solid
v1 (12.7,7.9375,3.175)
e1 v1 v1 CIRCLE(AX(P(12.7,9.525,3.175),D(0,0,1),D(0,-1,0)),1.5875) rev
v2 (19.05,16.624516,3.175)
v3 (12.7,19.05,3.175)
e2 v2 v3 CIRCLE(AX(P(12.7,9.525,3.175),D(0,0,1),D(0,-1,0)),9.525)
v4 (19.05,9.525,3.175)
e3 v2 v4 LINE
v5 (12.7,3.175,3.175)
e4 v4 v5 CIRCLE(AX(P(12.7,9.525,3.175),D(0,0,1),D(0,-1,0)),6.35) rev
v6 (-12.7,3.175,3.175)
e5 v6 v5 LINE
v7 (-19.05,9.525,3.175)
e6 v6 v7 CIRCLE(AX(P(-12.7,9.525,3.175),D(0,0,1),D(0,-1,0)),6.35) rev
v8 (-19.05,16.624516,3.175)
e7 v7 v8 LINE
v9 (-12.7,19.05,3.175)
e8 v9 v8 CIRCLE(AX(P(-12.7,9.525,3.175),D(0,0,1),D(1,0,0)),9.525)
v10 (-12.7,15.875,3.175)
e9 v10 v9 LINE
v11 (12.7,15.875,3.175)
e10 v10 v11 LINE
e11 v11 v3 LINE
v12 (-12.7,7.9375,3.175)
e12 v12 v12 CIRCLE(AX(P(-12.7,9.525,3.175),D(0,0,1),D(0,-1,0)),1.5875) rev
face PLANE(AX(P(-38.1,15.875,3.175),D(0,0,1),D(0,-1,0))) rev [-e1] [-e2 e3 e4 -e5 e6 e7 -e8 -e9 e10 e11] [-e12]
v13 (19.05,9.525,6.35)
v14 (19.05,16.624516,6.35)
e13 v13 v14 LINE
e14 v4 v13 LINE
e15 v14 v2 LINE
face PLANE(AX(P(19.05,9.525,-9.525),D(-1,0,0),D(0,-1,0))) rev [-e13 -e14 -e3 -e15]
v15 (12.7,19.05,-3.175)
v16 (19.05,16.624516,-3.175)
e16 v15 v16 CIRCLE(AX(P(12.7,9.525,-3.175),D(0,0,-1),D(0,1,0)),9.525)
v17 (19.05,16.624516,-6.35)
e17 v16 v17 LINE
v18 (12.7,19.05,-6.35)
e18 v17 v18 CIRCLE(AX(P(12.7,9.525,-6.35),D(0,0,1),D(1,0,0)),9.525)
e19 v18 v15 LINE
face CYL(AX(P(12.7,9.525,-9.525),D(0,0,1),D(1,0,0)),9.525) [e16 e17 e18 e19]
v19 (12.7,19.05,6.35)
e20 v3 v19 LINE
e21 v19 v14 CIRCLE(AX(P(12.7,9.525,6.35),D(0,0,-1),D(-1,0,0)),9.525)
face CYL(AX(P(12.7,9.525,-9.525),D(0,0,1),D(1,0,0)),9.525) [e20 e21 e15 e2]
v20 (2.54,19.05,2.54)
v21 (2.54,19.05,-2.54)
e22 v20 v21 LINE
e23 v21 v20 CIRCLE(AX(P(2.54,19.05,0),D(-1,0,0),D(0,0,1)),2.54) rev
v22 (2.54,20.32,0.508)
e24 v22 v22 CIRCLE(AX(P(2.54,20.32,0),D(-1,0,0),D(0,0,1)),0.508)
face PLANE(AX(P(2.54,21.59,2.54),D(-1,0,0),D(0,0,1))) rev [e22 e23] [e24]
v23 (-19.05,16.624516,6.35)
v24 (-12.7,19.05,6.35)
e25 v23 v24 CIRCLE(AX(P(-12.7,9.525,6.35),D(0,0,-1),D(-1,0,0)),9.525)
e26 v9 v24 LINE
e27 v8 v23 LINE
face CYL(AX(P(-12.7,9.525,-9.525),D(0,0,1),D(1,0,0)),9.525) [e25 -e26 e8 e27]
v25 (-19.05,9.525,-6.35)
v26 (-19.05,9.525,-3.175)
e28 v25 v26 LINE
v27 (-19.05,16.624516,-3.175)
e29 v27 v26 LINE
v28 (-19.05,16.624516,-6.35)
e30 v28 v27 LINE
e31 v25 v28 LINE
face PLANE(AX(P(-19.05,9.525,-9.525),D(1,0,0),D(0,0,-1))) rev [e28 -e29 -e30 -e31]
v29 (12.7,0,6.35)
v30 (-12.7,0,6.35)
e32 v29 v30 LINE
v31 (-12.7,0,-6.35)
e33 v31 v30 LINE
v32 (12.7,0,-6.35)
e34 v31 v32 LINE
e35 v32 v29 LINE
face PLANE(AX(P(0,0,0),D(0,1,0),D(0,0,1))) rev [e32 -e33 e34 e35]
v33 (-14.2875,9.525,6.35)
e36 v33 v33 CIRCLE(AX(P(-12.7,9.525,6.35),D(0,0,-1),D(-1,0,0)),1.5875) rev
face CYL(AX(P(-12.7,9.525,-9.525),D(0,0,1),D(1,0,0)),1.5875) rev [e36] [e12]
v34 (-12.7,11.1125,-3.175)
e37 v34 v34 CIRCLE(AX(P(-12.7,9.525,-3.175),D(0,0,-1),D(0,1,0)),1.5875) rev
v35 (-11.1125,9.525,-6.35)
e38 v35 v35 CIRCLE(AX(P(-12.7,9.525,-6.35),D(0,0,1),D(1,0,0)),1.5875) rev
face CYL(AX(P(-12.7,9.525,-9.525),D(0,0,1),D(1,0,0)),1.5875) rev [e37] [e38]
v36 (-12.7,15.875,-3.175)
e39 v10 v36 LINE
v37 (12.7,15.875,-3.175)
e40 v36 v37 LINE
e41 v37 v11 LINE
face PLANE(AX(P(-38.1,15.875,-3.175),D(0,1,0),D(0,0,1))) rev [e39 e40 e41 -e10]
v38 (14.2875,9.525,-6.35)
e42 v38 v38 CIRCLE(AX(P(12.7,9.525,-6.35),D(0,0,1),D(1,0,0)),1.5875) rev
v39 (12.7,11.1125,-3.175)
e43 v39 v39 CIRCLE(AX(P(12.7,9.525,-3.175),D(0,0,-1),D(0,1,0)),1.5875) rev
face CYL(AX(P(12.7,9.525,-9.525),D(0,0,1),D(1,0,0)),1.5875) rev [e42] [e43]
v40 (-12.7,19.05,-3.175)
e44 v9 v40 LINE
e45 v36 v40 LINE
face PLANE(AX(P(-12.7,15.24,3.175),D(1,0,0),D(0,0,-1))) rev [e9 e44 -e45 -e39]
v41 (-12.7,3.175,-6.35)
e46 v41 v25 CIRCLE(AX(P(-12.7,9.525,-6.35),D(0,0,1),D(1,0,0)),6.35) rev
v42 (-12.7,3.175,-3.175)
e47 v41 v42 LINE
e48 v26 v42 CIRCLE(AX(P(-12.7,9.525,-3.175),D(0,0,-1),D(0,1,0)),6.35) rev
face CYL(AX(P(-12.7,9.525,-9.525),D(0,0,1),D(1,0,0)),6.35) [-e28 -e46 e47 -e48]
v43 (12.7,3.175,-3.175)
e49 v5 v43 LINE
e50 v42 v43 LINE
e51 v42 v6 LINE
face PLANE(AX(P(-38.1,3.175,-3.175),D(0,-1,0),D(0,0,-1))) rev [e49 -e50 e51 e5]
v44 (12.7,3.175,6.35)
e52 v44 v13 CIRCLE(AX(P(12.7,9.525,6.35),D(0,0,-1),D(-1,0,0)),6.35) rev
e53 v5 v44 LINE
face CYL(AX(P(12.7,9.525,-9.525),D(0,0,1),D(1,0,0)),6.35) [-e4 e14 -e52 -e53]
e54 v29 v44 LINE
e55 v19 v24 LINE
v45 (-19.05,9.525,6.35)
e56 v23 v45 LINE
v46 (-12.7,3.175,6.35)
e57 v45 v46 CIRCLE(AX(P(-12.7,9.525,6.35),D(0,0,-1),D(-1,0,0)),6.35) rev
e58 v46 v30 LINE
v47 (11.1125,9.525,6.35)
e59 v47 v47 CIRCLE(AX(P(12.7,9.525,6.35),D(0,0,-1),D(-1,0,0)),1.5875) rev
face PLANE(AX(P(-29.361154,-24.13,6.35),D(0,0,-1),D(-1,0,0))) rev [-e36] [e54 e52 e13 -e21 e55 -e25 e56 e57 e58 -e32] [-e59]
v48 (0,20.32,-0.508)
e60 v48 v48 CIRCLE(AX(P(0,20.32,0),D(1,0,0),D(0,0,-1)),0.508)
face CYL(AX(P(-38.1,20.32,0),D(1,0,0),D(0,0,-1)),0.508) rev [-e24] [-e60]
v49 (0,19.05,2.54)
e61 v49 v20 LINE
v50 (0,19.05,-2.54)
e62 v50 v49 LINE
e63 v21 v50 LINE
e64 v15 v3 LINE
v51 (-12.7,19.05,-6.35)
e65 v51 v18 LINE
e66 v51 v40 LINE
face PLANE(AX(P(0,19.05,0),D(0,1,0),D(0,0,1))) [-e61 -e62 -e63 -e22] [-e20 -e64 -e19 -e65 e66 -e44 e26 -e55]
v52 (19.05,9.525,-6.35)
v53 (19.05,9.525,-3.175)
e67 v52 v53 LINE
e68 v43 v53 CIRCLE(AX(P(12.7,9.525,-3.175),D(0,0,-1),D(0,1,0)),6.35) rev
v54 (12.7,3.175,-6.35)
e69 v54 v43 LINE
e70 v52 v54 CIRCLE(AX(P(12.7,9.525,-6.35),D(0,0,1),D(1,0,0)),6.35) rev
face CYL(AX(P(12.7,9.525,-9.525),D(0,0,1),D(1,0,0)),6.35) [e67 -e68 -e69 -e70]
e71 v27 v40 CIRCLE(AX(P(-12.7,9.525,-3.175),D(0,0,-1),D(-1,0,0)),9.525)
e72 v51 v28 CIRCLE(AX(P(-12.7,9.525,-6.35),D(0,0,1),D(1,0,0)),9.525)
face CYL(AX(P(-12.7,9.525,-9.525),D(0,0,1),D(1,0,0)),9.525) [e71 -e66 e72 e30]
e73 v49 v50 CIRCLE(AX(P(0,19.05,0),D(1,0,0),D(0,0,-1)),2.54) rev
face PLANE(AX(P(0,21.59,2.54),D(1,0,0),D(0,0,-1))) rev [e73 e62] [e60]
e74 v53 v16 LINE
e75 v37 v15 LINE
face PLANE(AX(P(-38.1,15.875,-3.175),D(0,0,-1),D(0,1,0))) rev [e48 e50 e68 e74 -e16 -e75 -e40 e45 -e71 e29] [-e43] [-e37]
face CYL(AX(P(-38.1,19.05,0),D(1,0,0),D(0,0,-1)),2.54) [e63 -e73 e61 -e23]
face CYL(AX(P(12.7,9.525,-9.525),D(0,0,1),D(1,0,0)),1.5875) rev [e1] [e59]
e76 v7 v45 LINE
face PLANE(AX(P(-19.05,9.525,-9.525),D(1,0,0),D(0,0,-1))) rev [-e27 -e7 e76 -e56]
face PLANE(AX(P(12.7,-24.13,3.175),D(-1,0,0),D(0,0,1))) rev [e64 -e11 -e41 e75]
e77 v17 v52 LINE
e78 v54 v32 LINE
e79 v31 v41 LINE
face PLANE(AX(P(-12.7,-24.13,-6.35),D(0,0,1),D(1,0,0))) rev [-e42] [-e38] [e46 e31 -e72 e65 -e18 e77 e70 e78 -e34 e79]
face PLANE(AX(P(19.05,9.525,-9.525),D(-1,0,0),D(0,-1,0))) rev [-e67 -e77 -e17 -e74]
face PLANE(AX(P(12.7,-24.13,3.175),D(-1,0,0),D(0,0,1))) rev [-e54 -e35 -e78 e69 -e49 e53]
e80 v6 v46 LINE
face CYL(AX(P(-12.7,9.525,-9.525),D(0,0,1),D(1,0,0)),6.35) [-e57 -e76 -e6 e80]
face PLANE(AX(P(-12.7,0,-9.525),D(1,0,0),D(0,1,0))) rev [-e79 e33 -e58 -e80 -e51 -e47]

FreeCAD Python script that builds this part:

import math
import FreeCAD as App
import Part
import Sketcher

V = App.Vector
Q = App.Units.Quantity

doc = App.newDocument("Part")
params = doc.addObject("Spreadsheet::Sheet", "Params")
for row, (alias, value) in enumerate([
    ("sketch1_width", "1.75 in"),
    ("sketch1_height", "0.75 in"),
    ("pad1_length", "0.75 in"),
    ("sketch2_diameter", "0.125 in"),
    ("sketch2_radius", "0.375 in"),
    ("pocket1_length", "0.75 in"),
    ("sketch3_width", "0.1 in"),
    ("sketch3_height", "0.2 in"),
    ("pad2_length", "0.1 in"),
    ("sketch4_radius", "0.1 in"),
    ("sketch4_diameter", "0.04 in"),
    ("sketch4_width", "0.5 in"),
    ("sketch4_height", "0.25 in"),
    ("pocket2_length", "3 in"),
    ("sketch5_height", "0.25 in"),
    ("pocket3_length", "1.7 in"),
    ("sketch6_radius", "0.25 in"),
    ("sketch6_height", "0.125 in"),
    ("pocket4_length", "0.75 in"),
    ("sketch7_height", "0.25 in"),
    ("pocket5_length", "0.15 in"),
], start=1):
    params.set(f"A{row}", alias)
    params.set(f"B{row}", "=" + value)
    params.setAlias(f"B{row}", alias)

body = doc.addObject("PartDesign::Body", "Body")

sketch1 = body.newObject("Sketcher::SketchObject", "Sketch")
sketch1.AttachmentSupport = (doc.getObject("XZ_Plane"), [""])
sketch1.MapMode = "FlatFace"
sketch1.addGeometry([
    Part.LineSegment(V(-22.225, -9.525, 0), V(-22.225, 9.525, 0)),
    Part.LineSegment(V(-22.225, 9.525, 0), V(22.225, 9.525, 0)),
    Part.LineSegment(V(22.225, 9.525, 0), V(22.225, -9.525, 0)),
    Part.LineSegment(V(22.225, -9.525, 0), V(-22.225, -9.525, 0)),
], False)
sketch1.addConstraint([
    Sketcher.Constraint("Coincident", 0, 2, 1, 1),
    Sketcher.Constraint("Coincident", 1, 2, 2, 1),
    Sketcher.Constraint("Coincident", 2, 2, 3, 1),
    Sketcher.Constraint("Coincident", 3, 2, 0, 1),
    Sketcher.Constraint("Vertical", 0),
    Sketcher.Constraint("Horizontal", 1),
    Sketcher.Constraint("Vertical", 2),
    Sketcher.Constraint("Horizontal", 3),
    Sketcher.Constraint("Symmetric", 0, 2, 2, 2, -1, 1),
    Sketcher.Constraint("DistanceX", 1, 1, 1, 2, Q("1.75 in")),
    Sketcher.Constraint("DistanceY", 0, 1, 0, 2, Q("0.75 in")),
])
sketch1.setExpression("Constraints[9]", "Params.sketch1_width")
sketch1.setExpression("Constraints[10]", "Params.sketch1_height")
pad1 = body.newObject("PartDesign::Pad", "Pad")
pad1.Profile = sketch1
pad1.setExpression("Length", "Params.pad1_length")
pad1.Reversed = True

sketch2 = body.newObject("Sketcher::SketchObject", "Sketch001")
sketch2.AttachmentSupport = (doc.getObject("XY_Plane"), [""])
sketch2.MapMode = "FlatFace"
sketch2.AttachmentOffset = App.Placement(V(0, 0, 0.375 * 25.4), App.Rotation())
sketch2.addGeometry([
    Part.Circle(V(-12.7, 9.525, 0), V(0, 0, 1), 1.5875),
    Part.Circle(V(12.7, 9.525, 0), V(0, 0, 1), 1.5875),
    Part.ArcOfCircle(Part.Circle(V(-12.7, 9.525, 0), V(0, 0, 1), 9.525), math.radians(90), math.radians(270)),
    Part.ArcOfCircle(Part.Circle(V(-20.563339, 9.525, 0), V(0, 0, 1), 12.351426), math.radians(50.458711), math.radians(309.541289)),
    Part.ArcOfCircle(Part.Circle(V(20.563339, 9.525, 0), V(0, 0, 1), 12.351426), math.radians(-129.541289), math.radians(129.541289)),
    Part.ArcOfCircle(Part.Circle(V(12.7, 9.525, 0), V(0, 0, 1), 9.525), math.radians(-90), math.radians(90)),
], False)
sketch2.addConstraint([
    Sketcher.Constraint("Coincident", 2, 1, 3, 1),
    Sketcher.Constraint("Coincident", 3, 2, 2, 2),
    Sketcher.Constraint("Coincident", 4, 1, 5, 1),
    Sketcher.Constraint("Coincident", 5, 2, 4, 2),
    Sketcher.Constraint("Coincident", 2, 3, 0, 3),
    Sketcher.Constraint("Coincident", 5, 3, 1, 3),
    Sketcher.Constraint("Equal", 0, 1),
    Sketcher.Constraint("Equal", 3, 4),
    Sketcher.Constraint("Equal", 2, 5),
    Sketcher.Constraint("Symmetric", 3, 2, 4, 1, -1, 1),
    Sketcher.Constraint("Symmetric", 0, 3, 1, 3, -2),
    Sketcher.Constraint("Horizontal", 2, 3, 3, 3),
    Sketcher.Constraint("Horizontal", 3, 3, 4, 3),
    Sketcher.Constraint("Vertical", 0, 3, 2, 1),
    Sketcher.Constraint("Diameter", 0, Q("0.125 in")),
    Sketcher.Constraint("Radius", 2, Q("0.375 in")),
    Sketcher.Constraint("DistanceX", 0, 3, 1, 3, Q("1 in")),
    Sketcher.Constraint("Radius", 3, Q("12.351426 mm")),
])
sketch2.setExpression("Constraints[14]", "Params.sketch2_diameter")
sketch2.setExpression("Constraints[15]", "Params.sketch2_radius")
pocket1 = body.newObject("PartDesign::Pocket", "Pocket")
pocket1.Profile = sketch2
pocket1.setExpression("Length", "Params.pocket1_length")

sketch3 = body.newObject("Sketcher::SketchObject", "Sketch002")
sketch3.AttachmentSupport = (doc.getObject("XZ_Plane"), [""])
sketch3.MapMode = "FlatFace"
sketch3.AttachmentOffset = App.Placement(V(0, 0, -0.75 * 25.4), App.Rotation())
sketch3.addGeometry([
    Part.LineSegment(V(0, -2.54, 0), V(0, 2.54, 0)),
    Part.LineSegment(V(0, 2.54, 0), V(2.54, 2.54, 0)),
    Part.LineSegment(V(2.54, 2.54, 0), V(2.54, -2.54, 0)),
    Part.LineSegment(V(2.54, -2.54, 0), V(0, -2.54, 0)),
], False)
sketch3.addConstraint([
    Sketcher.Constraint("Coincident", 0, 2, 1, 1),
    Sketcher.Constraint("Coincident", 1, 2, 2, 1),
    Sketcher.Constraint("Coincident", 2, 2, 3, 1),
    Sketcher.Constraint("Coincident", 3, 2, 0, 1),
    Sketcher.Constraint("Vertical", 0),
    Sketcher.Constraint("Horizontal", 1),
    Sketcher.Constraint("Vertical", 2),
    Sketcher.Constraint("Horizontal", 3),
    Sketcher.Constraint("Symmetric", 0, 2, 3, 2, -1, 1),
    Sketcher.Constraint("DistanceX", 1, 1, 1, 2, Q("0.1 in")),
    Sketcher.Constraint("DistanceY", 0, 1, 0, 2, Q("0.2 in")),
])
sketch3.setExpression("Constraints[9]", "Params.sketch3_width")
sketch3.setExpression("Constraints[10]", "Params.sketch3_height")
pad2 = body.newObject("PartDesign::Pad", "Pad001")
pad2.Profile = sketch3
pad2.setExpression("Length", "Params.pad2_length")
pad2.Reversed = True

sketch4 = body.newObject("Sketcher::SketchObject", "Sketch003")
sketch4.AttachmentSupport = (doc.getObject("YZ_Plane"), [""])
sketch4.MapMode = "FlatFace"
sketch4.addGeometry([
    Part.Circle(V(20.32, 0, 0), V(0, 0, 1), 0.508),
    Part.LineSegment(V(15.875, 3.175, 0), V(3.175, 3.175, 0)),
    Part.LineSegment(V(3.175, 3.175, 0), V(3.175, -3.175, 0)),
    Part.LineSegment(V(3.175, -3.175, 0), V(15.875, -3.175, 0)),
    Part.LineSegment(V(15.875, -3.175, 0), V(15.875, 3.175, 0)),
    Part.ArcOfCircle(Part.Circle(V(19.05, 0, 0), V(0, 0, 1), 2.54), math.radians(-90), math.radians(90)),
    Part.ArcOfCircle(Part.Circle(V(20.941279, 0, 0), V(0, 0, 1), 3.166786), math.radians(-126.671296), math.radians(126.671296)),
], False)
sketch4.addConstraint([
    Sketcher.Constraint("Coincident", 1, 2, 2, 1),
    Sketcher.Constraint("Coincident", 2, 2, 3, 1),
    Sketcher.Constraint("Coincident", 3, 2, 4, 1),
    Sketcher.Constraint("Coincident", 4, 2, 1, 1),
    Sketcher.Constraint("Coincident", 5, 1, 6, 1),
    Sketcher.Constraint("Coincident", 6, 2, 5, 2),
    Sketcher.Constraint("Horizontal", 1),
    Sketcher.Constraint("Vertical", 2),
    Sketcher.Constraint("Horizontal", 3),
    Sketcher.Constraint("Vertical", 4),
    Sketcher.Constraint("Symmetric", 5, 1, 6, 2, -1),
    Sketcher.Constraint("PointOnObject", 0, 3, -1),
    Sketcher.Constraint("Radius", 5, Q("0.1 in")),
    Sketcher.Constraint("Diameter", 0, Q("0.04 in")),
    Sketcher.Constraint("DistanceX", 1, 2, 1, 1, Q("0.5 in")),
    Sketcher.Constraint("DistanceY", 2, 2, 2, 1, Q("0.25 in")),
    Sketcher.Constraint("DistanceX", -1, 1, 0, 3, Q("0.8 in")),
    Sketcher.Constraint("DistanceX", -1, 1, 5, 3, Q("0.75 in")),
    Sketcher.Constraint("DistanceX", -1, 1, 5, 1, Q("0.75 in")),
    Sketcher.Constraint("DistanceX", -1, 1, 1, 2, Q("0.125 in")),
    Sketcher.Constraint("DistanceY", -1, 1, 1, 2, Q("0.125 in")),
    Sketcher.Constraint("Radius", 6, Q("3.166786 mm")),
])
sketch4.setExpression("Constraints[12]", "Params.sketch4_radius")
sketch4.setExpression("Constraints[13]", "Params.sketch4_diameter")
sketch4.setExpression("Constraints[14]", "Params.sketch4_width")
sketch4.setExpression("Constraints[15]", "Params.sketch4_height")
pocket2 = body.newObject("PartDesign::Pocket", "Pocket001")
pocket2.Profile = sketch4
pocket2.setExpression("Length", "Params.pocket2_length")
pocket2.Midplane = True

sketch5 = body.newObject("Sketcher::SketchObject", "Sketch004")
sketch5.AttachmentSupport = (doc.getObject("XZ_Plane"), [""])
sketch5.MapMode = "FlatFace"
sketch5.AttachmentOffset = App.Placement(V(0, 0, -0.75 * 25.4), App.Rotation())
sketch5.addGeometry([
    Part.LineSegment(V(-29.361154, 9.525, 0), V(28.406627, 9.525, 0)),
    Part.LineSegment(V(28.406627, 9.525, 0), V(28.406627, 6.35, 0)),
    Part.LineSegment(V(28.406627, 6.35, 0), V(-29.361154, 6.35, 0)),
    Part.LineSegment(V(-29.361154, 6.35, 0), V(-29.361154, 9.525, 0)),
    Part.LineSegment(V(-31.510325, -6.35, 0), V(30.675017, -6.35, 0)),
    Part.LineSegment(V(30.675017, -6.35, 0), V(30.675017, -9.525, 0)),
    Part.LineSegment(V(30.675017, -9.525, 0), V(-31.510325, -9.525, 0)),
    Part.LineSegment(V(-31.510325, -9.525, 0), V(-31.510325, -6.35, 0)),
    Part.LineSegment(V(12.7, -3.175, 0), V(12.7, 3.175, 0)),
    Part.LineSegment(V(12.7, 3.175, 0), V(29.167967, 3.175, 0)),
    Part.LineSegment(V(29.167967, 3.175, 0), V(29.167967, -3.175, 0)),
    Part.LineSegment(V(29.167967, -3.175, 0), V(12.7, -3.175, 0)),
], False)
sketch5.addConstraint([
    Sketcher.Constraint("Coincident", 0, 2, 1, 1),
    Sketcher.Constraint("Coincident", 1, 2, 2, 1),
    Sketcher.Constraint("Coincident", 2, 2, 3, 1),
    Sketcher.Constraint("Coincident", 3, 2, 0, 1),
    Sketcher.Constraint("Coincident", 4, 2, 5, 1),
    Sketcher.Constraint("Coincident", 5, 2, 6, 1),
    Sketcher.Constraint("Coincident", 6, 2, 7, 1),
    Sketcher.Constraint("Coincident", 7, 2, 4, 1),
    Sketcher.Constraint("Coincident", 8, 2, 9, 1),
    Sketcher.Constraint("Coincident", 9, 2, 10, 1),
    Sketcher.Constraint("Coincident", 10, 2, 11, 1),
    Sketcher.Constraint("Coincident", 11, 2, 8, 1),
    Sketcher.Constraint("Horizontal", 0),
    Sketcher.Constraint("Vertical", 1),
    Sketcher.Constraint("Horizontal", 2),
    Sketcher.Constraint("Vertical", 3),
    Sketcher.Constraint("Horizontal", 4),
    Sketcher.Constraint("Vertical", 5),
    Sketcher.Constraint("Horizontal", 6),
    Sketcher.Constraint("Vertical", 7),
    Sketcher.Constraint("Vertical", 8),
    Sketcher.Constraint("Horizontal", 9),
    Sketcher.Constraint("Vertical", 10),
    Sketcher.Constraint("Horizontal", 11),
    Sketcher.Constraint("Equal", 3, 5),
    Sketcher.Constraint("DistanceY", 8, 1, 8, 2, Q("0.25 in")),
    Sketcher.Constraint("DistanceX", -1, 1, 8, 2, Q("0.5 in")),
    Sketcher.Constraint("DistanceY", 4, 2, 1, 2, Q("0.5 in")),
    Sketcher.Constraint("DistanceY", 5, 2, 8, 2, Q("0.5 in")),
    Sketcher.Constraint("DistanceY", 10, 2, 0, 2, Q("0.5 in")),
    Sketcher.Constraint("DistanceY", -1, 1, 1, 2, Q("0.25 in")),
    Sketcher.Constraint("DistanceX", 0, 1, 0, 2, Q("57.767781 mm")),
    Sketcher.Constraint("DistanceX", 4, 1, 4, 2, Q("62.185342 mm")),
    Sketcher.Constraint("DistanceX", 9, 1, 9, 2, Q("16.467967 mm")),
    Sketcher.Constraint("DistanceX", 1, 2, 4, 2, Q("2.268391 mm")),
    Sketcher.Constraint("DistanceX", 1, 2, 9, 2, Q("0.761341 mm")),
])
sketch5.setExpression("Constraints[25]", "Params.sketch5_height")
pocket3 = body.newObject("PartDesign::Pocket", "Pocket002")
pocket3.Profile = sketch5
pocket3.setExpression("Length", "Params.pocket3_length")
pocket3.Reversed = True

sketch6 = body.newObject("Sketcher::SketchObject", "Sketch005")
sketch6.AttachmentSupport = (doc.getObject("XY_Plane"), [""])
sketch6.MapMode = "FlatFace"
sketch6.AttachmentOffset = App.Placement(V(0, 0, 0.375 * 25.4), App.Rotation())
sketch6.addGeometry([
    Part.LineSegment(V(12.7, 0, 0), V(31.980086, 0, 0)),
    Part.LineSegment(V(31.980086, 0, 0), V(31.980086, 3.175, 0)),
    Part.LineSegment(V(31.980086, 3.175, 0), V(26.132156, 13.808491, 0)),
    Part.LineSegment(V(26.132156, 13.808491, 0), V(19.05, 19.755699, 0)),
    Part.LineSegment(V(19.05, 19.755699, 0), V(19.05, 9.525, 0)),
    Part.ArcOfCircle(Part.Circle(V(12.7, 9.525, 0), V(0, 0, 1), 6.35), math.radians(-90), math.radians(0)),
    Part.LineSegment(V(12.7, 3.175, 0), V(12.7, 0, 0)),
    Part.LineSegment(V(-12.7, 0, 0), V(-12.7, 3.175, 0)),
    Part.ArcOfCircle(Part.Circle(V(-12.7, 9.525, 0), V(0, 0, 1), 6.35), math.radians(180), math.radians(270)),
    Part.LineSegment(V(-19.05, 9.525, 0), V(-19.05, 20.942772, 0)),
    Part.LineSegment(V(-19.05, 20.942772, 0), V(-28.921644, 11.767685, 0)),
    Part.LineSegment(V(-28.921644, 11.767685, 0), V(-28.921644, 0, 0)),
    Part.LineSegment(V(-28.921644, 0, 0), V(-12.7, 0, 0)),
], False)
sketch6.addConstraint([
    Sketcher.Constraint("Coincident", 0, 2, 1, 1),
    Sketcher.Constraint("Coincident", 1, 2, 2, 1),
    Sketcher.Constraint("Coincident", 2, 2, 3, 1),
    Sketcher.Constraint("Coincident", 3, 2, 4, 1),
    Sketcher.Constraint("Tangent", 4, 2, 5, 2),
    Sketcher.Constraint("Coincident", 5, 1, 6, 1),
    Sketcher.Constraint("Coincident", 6, 2, 0, 1),
    Sketcher.Constraint("Coincident", 7, 2, 8, 2),
    Sketcher.Constraint("Tangent", 8, 1, 9, 1),
    Sketcher.Constraint("Coincident", 9, 2, 10, 1),
    Sketcher.Constraint("Coincident", 10, 2, 11, 1),
    Sketcher.Constraint("Coincident", 11, 2, 12, 1),
    Sketcher.Constraint("Coincident", 12, 2, 7, 1),
    Sketcher.Constraint("Horizontal", 0),
    Sketcher.Constraint("Vertical", 1),
    Sketcher.Constraint("Vertical", 4),
    Sketcher.Constraint("Vertical", 6),
    Sketcher.Constraint("Vertical", 7),
    Sketcher.Constraint("Vertical", 9),
    Sketcher.Constraint("Vertical", 11),
    Sketcher.Constraint("Horizontal", 12),
    Sketcher.Constraint("Equal", 5, 8),
    Sketcher.Constraint("Symmetric", 6, 2, 12, 2, -1, 1),
    Sketcher.Constraint("Symmetric", 5, 3, 8, 3, -2),
    Sketcher.Constraint("PointOnObject", 0, 2, -1),
    Sketcher.Constraint("Horizontal", 1, 2, 5, 1),
    Sketcher.Constraint("Vertical", 8, 3, 7, 2),
    Sketcher.Constraint("Radius", 5, Q("0.25 in")),
    Sketcher.Constraint("DistanceX", 8, 3, 5, 3, Q("1 in")),
    Sketcher.Constraint("DistanceY", 1, 1, 1, 2, Q("0.125 in")),
    Sketcher.Constraint("DistanceY", 4, 2, 4, 1, Q("10.230699 mm")),
    Sketcher.Constraint("DistanceY", 9, 1, 9, 2, Q("11.417772 mm")),
    Sketcher.Constraint("Distance", 2, Q("12.135461 mm")),
    Sketcher.Constraint("Distance", 3, Q("9.248039 mm")),
    Sketcher.Constraint("DistanceX", 0, 1, 0, 2, Q("19.280086 mm")),
    Sketcher.Constraint("DistanceX", 12, 1, 12, 2, Q("16.221644 mm")),
    Sketcher.Constraint("DistanceY", 11, 2, 11, 1, Q("11.767685 mm")),
])
sketch6.setExpression("Constraints[27]", "Params.sketch6_radius")
sketch6.setExpression("Constraints[29]", "Params.sketch6_height")
pocket4 = body.newObject("PartDesign::Pocket", "Pocket003")
pocket4.Profile = sketch6
pocket4.setExpression("Length", "Params.pocket4_length")

sketch7 = body.newObject("Sketcher::SketchObject", "Sketch006")
sketch7.AttachmentSupport = (doc.getObject("XZ_Plane"), [""])
sketch7.MapMode = "FlatFace"
sketch7.AttachmentOffset = App.Placement(V(0, 0, -0.75 * 25.4), App.Rotation())
sketch7.addGeometry([
    Part.LineSegment(V(-27.748903, -3.175, 0), V(-27.748903, 3.175, 0)),
    Part.LineSegment(V(-27.748903, 3.175, 0), V(-12.7, 3.175, 0)),
    Part.LineSegment(V(-12.7, 3.175, 0), V(-12.7, -3.175, 0)),
    Part.LineSegment(V(-12.7, -3.175, 0), V(-27.748903, -3.175, 0)),
], False)
sketch7.addConstraint([
    Sketcher.Constraint("Coincident", 0, 2, 1, 1),
    Sketcher.Constraint("Coincident", 1, 2, 2, 1),
    Sketcher.Constraint("Coincident", 2, 2, 3, 1),
    Sketcher.Constraint("Coincident", 3, 2, 0, 1),
    Sketcher.Constraint("Vertical", 0),
    Sketcher.Constraint("Horizontal", 1),
    Sketcher.Constraint("Vertical", 2),
    Sketcher.Constraint("Horizontal", 3),
    Sketcher.Constraint("DistanceY", 0, 1, 0, 2, Q("0.25 in")),
    Sketcher.Constraint("DistanceX", 1, 2, -1, 1, Q("0.5 in")),
    Sketcher.Constraint("DistanceY", -1, 1, 0, 2, Q("0.125 in")),
    Sketcher.Constraint("DistanceX", 1, 1, 1, 2, Q("15.048903 mm")),
])
sketch7.setExpression("Constraints[8]", "Params.sketch7_height")
pocket5 = body.newObject("PartDesign::Pocket", "Pocket004")
pocket5.Profile = sketch7
pocket5.setExpression("Length", "Params.pocket5_length")
pocket5.Reversed = True

doc.recompute()
